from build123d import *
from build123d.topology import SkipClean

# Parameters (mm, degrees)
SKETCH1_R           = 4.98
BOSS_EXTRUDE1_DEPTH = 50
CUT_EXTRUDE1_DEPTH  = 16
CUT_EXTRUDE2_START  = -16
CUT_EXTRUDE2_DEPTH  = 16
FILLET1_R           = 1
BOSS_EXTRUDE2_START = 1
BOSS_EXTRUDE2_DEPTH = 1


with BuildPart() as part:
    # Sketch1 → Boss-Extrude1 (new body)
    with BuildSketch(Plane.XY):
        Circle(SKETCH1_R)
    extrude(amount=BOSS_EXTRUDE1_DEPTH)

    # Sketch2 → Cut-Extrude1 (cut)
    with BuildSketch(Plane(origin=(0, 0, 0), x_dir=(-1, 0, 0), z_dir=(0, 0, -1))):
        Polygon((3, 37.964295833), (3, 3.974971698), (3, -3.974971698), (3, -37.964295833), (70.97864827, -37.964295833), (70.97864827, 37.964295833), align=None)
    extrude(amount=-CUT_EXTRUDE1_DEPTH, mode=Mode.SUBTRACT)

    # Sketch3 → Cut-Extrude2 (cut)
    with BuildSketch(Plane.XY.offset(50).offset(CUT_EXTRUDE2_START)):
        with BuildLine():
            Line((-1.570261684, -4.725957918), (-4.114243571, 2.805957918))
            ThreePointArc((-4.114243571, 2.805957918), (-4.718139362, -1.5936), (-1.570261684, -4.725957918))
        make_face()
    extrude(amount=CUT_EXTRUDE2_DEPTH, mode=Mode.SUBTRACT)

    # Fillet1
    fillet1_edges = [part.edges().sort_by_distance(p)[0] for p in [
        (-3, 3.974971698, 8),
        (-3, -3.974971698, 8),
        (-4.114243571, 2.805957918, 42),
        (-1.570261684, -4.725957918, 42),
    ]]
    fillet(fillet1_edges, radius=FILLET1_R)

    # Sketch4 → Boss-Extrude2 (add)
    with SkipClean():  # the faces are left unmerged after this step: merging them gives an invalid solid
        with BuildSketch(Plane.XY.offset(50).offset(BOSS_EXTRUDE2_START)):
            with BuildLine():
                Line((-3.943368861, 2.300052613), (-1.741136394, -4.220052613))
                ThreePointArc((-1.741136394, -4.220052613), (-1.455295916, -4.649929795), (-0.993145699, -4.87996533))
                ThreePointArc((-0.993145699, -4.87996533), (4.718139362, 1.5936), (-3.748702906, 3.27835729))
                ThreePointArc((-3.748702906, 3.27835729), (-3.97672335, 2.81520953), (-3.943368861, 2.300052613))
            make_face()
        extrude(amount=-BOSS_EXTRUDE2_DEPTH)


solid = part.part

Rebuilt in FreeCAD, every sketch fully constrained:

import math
import FreeCAD as App
import Part
import Sketcher
Q = App.Units.Quantity


def edges_at(feature, points):
    """Names of the edges that pass closest to the given points."""
    edges = feature.Shape.Edges
    near = lambda p: min(range(len(edges)), key=lambda i: edges[i].distToShape(Part.Vertex(*p))[0])
    return sorted({f"Edge{near(p) + 1}" for p in points})

doc = App.newDocument("Part")
body = doc.addObject("PartDesign::Body", "Body")

sketch1 = body.newObject("Sketcher::SketchObject", "Sketch")
sketch1.AttachmentSupport = (doc.getObject("XY_Plane"), [""])
sketch1.MapMode = "FlatFace"
sketch1.addGeometry(Part.Circle(App.Vector(0, 0, 0), App.Vector(0, 0, 1), 5), False)
sketch1.addConstraint([
    Sketcher.Constraint("Coincident", 0, 3, -1, 1),
    Sketcher.Constraint("Diameter", 0, Q("9.96 mm")),
])
pad1 = body.newObject("PartDesign::Pad", "Pad")
pad1.Profile = sketch1
pad1.Length = 50

sketch2 = body.newObject("Sketcher::SketchObject", "Sketch001")
sketch2.AttachmentSupport = (doc.getObject("XY_Plane"), [""])
sketch2.MapMode = "FlatFace"
sketch2.addGeometry([
    Part.LineSegment(App.Vector(-3, 38, 0), App.Vector(-3, -38, 0)),
    Part.LineSegment(App.Vector(-3, -38, 0), App.Vector(-71, -38, 0)),
    Part.LineSegment(App.Vector(-71, -38, 0), App.Vector(-71, 38, 0)),
    Part.LineSegment(App.Vector(-71, 38, 0), App.Vector(-3, 38, 0)),
], False)
sketch2.addConstraint([
    Sketcher.Constraint("Coincident", 0, 2, 1, 1),
    Sketcher.Constraint("Coincident", 1, 2, 2, 1),
    Sketcher.Constraint("Coincident", 2, 2, 3, 1),
    Sketcher.Constraint("Coincident", 3, 2, 0, 1),
    Sketcher.Constraint("Vertical", 0),
    Sketcher.Constraint("Horizontal", 1),
    Sketcher.Constraint("Vertical", 2),
    Sketcher.Constraint("Horizontal", 3),
    Sketcher.Constraint("DistanceX", 0, 2, -1, 1, Q("3 mm")),
    Sketcher.Constraint("DistanceX", 1, 2, 1, 1, Q("67.978648 mm")),
    Sketcher.Constraint("DistanceY", 0, 2, 0, 1, Q("75.928592 mm")),
    Sketcher.Constraint("DistanceY", 0, 2, -1, 1, Q("37.964296 mm")),
])
pocket1 = body.newObject("PartDesign::Pocket", "Pocket")
pocket1.Profile = sketch2
pocket1.Length = 16
pocket1.Reversed = True

sketch3 = body.newObject("Sketcher::SketchObject", "Sketch002")
sketch3.AttachmentSupport = (doc.getObject("XY_Plane"), [""])
sketch3.MapMode = "FlatFace"
sketch3.AttachmentOffset = App.Placement(App.Vector(0, 0, 34), App.Rotation())
sketch3.addGeometry([
    Part.LineSegment(App.Vector(-1.6, -4.7, 0), App.Vector(-4.1, 2.8, 0)),
    Part.ArcOfCircle(Part.Circle(App.Vector(0, 0, 0), App.Vector(0, 0, 1), 5), math.radians(146), math.radians(252)),
], False)
sketch3.addConstraint([
    Sketcher.Constraint("Coincident", 0, 1, 1, 2),
    Sketcher.Constraint("Coincident", 1, 1, 0, 2),
    Sketcher.Constraint("Coincident", 1, 3, -1, 1),
    Sketcher.Constraint("Radius", 1, Q("4.98 mm")),
    Sketcher.Constraint("DistanceX", 0, 1, -1, 1, Q("1.570262 mm")),
    Sketcher.Constraint("DistanceX", 1, 1, 0, 1, Q("2.543982 mm")),
])
pocket2 = body.newObject("PartDesign::Pocket", "Pocket001")
pocket2.Profile = sketch3
pocket2.Length = 16
pocket2.Reversed = True
doc.recompute()

fillet = body.newObject("PartDesign::Fillet", "Fillet")
fillet.Base = (pocket2, edges_at(pocket2, [
    (-3, 3.975, 8),
    (-3, -3.975, 8),
    (-4.114, 2.806, 42),
    (-1.57, -4.726, 42),
]))
fillet.Radius = 1

sketch4 = body.newObject("Sketcher::SketchObject", "Sketch003")
sketch4.AttachmentSupport = (doc.getObject("XY_Plane"), [""])
sketch4.MapMode = "FlatFace"
sketch4.AttachmentOffset = App.Placement(App.Vector(0, 0, 51), App.Rotation())
sketch4.addGeometry([
    Part.LineSegment(App.Vector(-3.9, 2.3, 0), App.Vector(-1.7, -4.2, 0)),
    Part.ArcOfCircle(Part.Circle(App.Vector(-0.8, -3.9, 0), App.Vector(0, 0, 1), 1), math.radians(-161), math.radians(-102)),
    Part.ArcOfCircle(Part.Circle(App.Vector(0, 0, 0), App.Vector(0, 0, 1), 5), math.radians(-102), math.radians(139)),
    Part.ArcOfCircle(Part.Circle(App.Vector(-3, 2.6, 0), App.Vector(0, 0, 1), 1), math.radians(139), math.radians(199)),
], False)
sketch4.addConstraint([
    Sketcher.Constraint("Tangent", 0, 2, 1, 1),
    Sketcher.Constraint("Tangent", 1, 2, 2, 1),
    Sketcher.Constraint("Tangent", 2, 2, 3, 1),
    Sketcher.Constraint("Tangent", 3, 2, 0, 1),
    Sketcher.Constraint("Coincident", 2, 3, -1, 1),
    Sketcher.Constraint("Equal", 1, 3),
    Sketcher.Constraint("Radius", 1, Q("1 mm")),
    Sketcher.Constraint("Radius", 2, Q("4.98 mm")),
    Sketcher.Constraint("DistanceY", 0, 2, 1, 3, Q("0.32 mm")),
    Sketcher.Constraint("DistanceX", 1, 3, -1, 1, Q("0.793719 mm")),
])
pad2 = body.newObject("PartDesign::Pad", "Pad001")
pad2.Profile = sketch4
pad2.Length = 1
pad2.Reversed = True

doc.recompute()
